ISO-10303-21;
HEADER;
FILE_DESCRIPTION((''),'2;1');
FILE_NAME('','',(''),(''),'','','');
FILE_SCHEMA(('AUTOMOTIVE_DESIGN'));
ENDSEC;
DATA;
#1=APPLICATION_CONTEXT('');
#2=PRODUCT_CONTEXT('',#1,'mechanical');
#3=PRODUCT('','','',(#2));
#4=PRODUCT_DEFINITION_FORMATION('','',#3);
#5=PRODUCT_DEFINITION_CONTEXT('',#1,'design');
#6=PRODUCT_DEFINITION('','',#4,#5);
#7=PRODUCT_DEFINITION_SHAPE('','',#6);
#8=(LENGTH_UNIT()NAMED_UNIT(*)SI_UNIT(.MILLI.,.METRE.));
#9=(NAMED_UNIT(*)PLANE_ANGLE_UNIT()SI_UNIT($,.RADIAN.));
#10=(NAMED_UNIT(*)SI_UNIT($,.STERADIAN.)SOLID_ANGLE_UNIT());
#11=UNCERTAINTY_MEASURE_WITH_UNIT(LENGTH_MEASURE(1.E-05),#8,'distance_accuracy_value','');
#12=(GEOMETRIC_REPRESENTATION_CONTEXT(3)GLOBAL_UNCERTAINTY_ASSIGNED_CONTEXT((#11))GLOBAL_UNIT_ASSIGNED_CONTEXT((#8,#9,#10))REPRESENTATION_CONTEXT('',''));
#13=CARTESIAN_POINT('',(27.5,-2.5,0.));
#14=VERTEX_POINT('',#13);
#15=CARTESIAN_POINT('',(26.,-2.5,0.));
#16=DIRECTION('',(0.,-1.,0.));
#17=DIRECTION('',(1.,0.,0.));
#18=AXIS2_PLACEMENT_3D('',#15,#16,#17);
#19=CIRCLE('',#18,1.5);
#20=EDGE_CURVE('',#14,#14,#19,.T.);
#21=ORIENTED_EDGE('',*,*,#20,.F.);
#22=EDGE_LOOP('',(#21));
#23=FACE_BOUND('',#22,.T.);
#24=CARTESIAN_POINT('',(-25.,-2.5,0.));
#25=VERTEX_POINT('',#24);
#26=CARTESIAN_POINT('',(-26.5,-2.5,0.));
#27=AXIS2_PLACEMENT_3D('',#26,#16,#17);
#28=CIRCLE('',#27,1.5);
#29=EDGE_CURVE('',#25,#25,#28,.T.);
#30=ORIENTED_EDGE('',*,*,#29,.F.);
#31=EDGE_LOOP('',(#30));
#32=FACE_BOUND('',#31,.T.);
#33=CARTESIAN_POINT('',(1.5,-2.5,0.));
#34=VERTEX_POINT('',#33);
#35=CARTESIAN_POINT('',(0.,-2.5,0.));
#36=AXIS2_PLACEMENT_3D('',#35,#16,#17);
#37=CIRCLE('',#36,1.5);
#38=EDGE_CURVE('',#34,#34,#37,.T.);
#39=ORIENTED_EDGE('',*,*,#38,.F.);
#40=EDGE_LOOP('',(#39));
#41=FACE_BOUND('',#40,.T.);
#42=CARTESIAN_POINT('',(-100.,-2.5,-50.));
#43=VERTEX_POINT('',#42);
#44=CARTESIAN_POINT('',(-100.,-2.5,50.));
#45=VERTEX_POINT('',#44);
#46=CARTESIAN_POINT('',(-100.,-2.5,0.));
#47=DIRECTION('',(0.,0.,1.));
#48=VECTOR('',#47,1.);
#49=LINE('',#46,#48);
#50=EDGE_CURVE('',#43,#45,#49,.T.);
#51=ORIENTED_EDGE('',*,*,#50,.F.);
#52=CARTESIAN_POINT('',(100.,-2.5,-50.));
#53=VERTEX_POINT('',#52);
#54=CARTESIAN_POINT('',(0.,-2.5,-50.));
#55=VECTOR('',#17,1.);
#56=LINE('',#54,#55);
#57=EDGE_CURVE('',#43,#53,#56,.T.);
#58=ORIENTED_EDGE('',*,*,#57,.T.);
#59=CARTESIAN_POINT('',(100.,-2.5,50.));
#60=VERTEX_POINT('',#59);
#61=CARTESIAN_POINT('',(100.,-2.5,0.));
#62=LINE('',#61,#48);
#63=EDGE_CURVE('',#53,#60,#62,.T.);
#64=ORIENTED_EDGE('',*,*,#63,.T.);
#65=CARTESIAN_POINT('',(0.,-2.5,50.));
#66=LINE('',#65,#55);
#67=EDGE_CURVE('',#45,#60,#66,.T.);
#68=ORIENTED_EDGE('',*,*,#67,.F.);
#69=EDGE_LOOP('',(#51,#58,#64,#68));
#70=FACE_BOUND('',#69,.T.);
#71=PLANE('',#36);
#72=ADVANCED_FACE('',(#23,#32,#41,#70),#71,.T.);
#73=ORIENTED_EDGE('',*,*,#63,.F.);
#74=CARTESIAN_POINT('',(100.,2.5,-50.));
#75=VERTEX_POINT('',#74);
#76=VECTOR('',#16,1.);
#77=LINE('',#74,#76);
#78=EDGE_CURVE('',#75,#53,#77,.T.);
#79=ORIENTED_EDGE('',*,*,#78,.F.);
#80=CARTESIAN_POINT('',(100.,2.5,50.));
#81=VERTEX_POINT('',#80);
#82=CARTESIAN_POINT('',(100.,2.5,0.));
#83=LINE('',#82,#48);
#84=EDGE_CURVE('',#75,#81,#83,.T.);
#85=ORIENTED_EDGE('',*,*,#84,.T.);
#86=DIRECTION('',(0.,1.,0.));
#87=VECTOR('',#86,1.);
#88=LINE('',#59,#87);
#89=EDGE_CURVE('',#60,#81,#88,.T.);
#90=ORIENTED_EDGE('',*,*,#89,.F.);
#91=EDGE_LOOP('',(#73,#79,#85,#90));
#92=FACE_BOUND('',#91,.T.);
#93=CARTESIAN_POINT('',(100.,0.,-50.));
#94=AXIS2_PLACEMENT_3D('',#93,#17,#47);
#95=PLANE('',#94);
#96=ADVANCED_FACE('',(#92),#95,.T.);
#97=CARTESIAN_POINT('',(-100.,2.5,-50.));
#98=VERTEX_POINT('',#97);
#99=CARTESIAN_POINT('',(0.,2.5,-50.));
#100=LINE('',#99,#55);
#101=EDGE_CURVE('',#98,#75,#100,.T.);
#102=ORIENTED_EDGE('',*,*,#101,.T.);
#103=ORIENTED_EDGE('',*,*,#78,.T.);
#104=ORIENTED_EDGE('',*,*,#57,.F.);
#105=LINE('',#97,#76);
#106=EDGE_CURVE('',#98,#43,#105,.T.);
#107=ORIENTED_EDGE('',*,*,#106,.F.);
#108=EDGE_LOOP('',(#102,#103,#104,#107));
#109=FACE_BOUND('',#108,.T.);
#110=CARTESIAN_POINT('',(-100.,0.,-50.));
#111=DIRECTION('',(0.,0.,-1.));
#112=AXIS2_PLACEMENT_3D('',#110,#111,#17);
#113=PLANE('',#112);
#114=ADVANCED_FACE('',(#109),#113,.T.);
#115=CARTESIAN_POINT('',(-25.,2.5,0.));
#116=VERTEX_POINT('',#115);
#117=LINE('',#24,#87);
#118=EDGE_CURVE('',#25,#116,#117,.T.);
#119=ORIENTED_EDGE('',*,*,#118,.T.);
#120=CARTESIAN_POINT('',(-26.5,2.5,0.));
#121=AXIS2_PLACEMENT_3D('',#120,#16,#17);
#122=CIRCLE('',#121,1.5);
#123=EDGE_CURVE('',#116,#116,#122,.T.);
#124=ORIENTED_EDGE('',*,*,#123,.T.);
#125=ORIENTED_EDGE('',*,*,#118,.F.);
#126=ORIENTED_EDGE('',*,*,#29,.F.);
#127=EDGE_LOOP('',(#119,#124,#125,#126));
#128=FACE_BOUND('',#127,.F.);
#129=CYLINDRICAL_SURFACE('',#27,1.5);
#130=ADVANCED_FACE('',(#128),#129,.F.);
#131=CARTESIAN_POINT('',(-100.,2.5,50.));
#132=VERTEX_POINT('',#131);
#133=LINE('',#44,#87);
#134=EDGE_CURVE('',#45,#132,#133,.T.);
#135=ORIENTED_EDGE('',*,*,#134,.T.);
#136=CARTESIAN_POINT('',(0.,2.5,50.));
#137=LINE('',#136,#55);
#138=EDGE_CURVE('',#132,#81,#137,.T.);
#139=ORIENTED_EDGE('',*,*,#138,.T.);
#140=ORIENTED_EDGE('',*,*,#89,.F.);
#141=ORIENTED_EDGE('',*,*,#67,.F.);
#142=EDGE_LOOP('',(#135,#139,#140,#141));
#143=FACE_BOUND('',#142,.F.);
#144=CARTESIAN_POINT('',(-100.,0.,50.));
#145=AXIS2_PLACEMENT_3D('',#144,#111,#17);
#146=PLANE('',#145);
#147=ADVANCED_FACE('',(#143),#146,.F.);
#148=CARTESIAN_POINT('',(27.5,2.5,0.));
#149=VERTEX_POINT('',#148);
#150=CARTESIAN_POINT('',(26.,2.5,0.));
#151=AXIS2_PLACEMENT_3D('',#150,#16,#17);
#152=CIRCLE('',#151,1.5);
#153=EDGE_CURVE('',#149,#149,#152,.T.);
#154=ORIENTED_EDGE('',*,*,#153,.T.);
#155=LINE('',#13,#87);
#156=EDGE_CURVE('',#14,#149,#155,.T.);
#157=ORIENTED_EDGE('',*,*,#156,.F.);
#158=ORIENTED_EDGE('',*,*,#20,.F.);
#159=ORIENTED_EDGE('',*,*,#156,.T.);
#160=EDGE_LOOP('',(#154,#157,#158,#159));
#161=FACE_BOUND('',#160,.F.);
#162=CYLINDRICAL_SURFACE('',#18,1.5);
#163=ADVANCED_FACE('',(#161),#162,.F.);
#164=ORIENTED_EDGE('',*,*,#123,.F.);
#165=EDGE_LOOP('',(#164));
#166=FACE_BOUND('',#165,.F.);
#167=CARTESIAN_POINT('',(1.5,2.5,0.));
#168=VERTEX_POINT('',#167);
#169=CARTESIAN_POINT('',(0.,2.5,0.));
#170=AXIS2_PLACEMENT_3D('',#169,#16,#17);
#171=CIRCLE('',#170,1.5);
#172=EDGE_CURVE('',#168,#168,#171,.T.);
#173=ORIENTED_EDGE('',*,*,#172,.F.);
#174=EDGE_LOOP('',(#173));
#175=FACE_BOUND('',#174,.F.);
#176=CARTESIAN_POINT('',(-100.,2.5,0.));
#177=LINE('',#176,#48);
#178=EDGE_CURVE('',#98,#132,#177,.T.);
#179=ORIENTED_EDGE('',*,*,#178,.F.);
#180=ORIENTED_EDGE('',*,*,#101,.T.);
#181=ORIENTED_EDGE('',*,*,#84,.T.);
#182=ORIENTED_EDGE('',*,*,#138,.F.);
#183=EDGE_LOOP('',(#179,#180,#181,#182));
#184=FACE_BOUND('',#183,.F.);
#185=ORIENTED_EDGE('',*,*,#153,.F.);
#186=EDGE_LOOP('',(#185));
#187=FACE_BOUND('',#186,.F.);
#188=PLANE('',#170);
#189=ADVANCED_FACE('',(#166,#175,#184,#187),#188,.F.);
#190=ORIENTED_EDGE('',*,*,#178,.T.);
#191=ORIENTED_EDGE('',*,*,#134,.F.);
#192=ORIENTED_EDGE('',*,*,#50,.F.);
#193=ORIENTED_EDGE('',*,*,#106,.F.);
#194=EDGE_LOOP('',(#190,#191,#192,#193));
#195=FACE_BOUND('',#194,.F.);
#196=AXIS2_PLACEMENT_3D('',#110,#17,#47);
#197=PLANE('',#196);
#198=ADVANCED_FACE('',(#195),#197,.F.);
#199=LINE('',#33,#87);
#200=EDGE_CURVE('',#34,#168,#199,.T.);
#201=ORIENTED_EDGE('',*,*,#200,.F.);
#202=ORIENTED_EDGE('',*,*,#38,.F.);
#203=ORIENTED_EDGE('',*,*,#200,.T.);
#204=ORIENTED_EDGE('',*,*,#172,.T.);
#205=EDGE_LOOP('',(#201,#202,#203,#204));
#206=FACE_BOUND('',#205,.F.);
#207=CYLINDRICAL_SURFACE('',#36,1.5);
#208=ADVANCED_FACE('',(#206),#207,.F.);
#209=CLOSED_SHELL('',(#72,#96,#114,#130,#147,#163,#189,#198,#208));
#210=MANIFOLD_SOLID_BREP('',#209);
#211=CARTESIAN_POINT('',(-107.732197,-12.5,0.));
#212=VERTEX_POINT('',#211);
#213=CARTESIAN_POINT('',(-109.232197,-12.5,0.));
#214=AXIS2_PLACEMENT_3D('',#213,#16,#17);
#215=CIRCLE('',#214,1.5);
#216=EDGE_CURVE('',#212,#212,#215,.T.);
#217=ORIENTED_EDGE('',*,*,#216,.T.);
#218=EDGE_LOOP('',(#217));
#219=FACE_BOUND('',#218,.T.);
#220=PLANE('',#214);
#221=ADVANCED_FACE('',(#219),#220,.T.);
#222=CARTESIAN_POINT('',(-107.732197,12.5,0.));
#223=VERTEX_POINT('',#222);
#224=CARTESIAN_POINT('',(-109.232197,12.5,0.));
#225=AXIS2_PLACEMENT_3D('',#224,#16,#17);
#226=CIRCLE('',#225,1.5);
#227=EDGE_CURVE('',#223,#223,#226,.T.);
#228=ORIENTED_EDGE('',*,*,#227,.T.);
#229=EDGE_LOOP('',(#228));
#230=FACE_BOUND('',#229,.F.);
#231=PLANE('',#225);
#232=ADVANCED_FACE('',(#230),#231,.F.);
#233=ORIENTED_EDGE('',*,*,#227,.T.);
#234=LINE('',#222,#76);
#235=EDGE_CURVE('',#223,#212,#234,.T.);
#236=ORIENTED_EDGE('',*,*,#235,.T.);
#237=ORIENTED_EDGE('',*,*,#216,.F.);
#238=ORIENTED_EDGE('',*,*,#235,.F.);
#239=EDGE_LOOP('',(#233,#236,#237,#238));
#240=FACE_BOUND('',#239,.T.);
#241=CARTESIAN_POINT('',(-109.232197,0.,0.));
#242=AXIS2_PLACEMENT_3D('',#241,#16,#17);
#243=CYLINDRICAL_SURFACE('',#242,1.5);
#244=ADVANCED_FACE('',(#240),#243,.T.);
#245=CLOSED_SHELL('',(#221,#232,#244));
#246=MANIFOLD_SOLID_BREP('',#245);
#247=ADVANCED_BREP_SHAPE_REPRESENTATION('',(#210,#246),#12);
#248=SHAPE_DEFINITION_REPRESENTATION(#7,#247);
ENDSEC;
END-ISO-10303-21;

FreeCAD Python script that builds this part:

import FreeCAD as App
import Part
import Sketcher

doc = App.newDocument("Part")
body = doc.addObject("PartDesign::Body", "Body")

sketch1 = doc.addObject("Sketcher::SketchObject", "Sketch")
body.addObject(sketch1)
sketch1.AttachmentSupport = (doc.XZ_Plane, [""])
sketch1.MapMode = "FlatFace"
sketch1.addGeometry([
    Part.LineSegment(App.Vector(-100, 50, 0), App.Vector(-100, -50, 0)),
    Part.LineSegment(App.Vector(-100, -50, 0), App.Vector(100, -50, 0)),
    Part.LineSegment(App.Vector(100, -50, 0), App.Vector(100, 50, 0)),
    Part.LineSegment(App.Vector(100, 50, 0), App.Vector(-100, 50, 0)),
], False)
sketch1.addConstraint([
    Sketcher.Constraint("Coincident", 0, 2, 1, 1),
    Sketcher.Constraint("Coincident", 1, 2, 2, 1),
    Sketcher.Constraint("Coincident", 2, 2, 3, 1),
    Sketcher.Constraint("Coincident", 3, 2, 0, 1),
    Sketcher.Constraint("Vertical", 0),
    Sketcher.Constraint("Horizontal", 1),
    Sketcher.Constraint("Vertical", 2),
    Sketcher.Constraint("Horizontal", 3),
    Sketcher.Constraint("Symmetric", 0, 2, 2, 2, -1, 1),
    Sketcher.Constraint("DistanceX", 1, 1, 1, 2, 200.0),
    Sketcher.Constraint("DistanceY", 0, 2, 0, 1, 100.0),
])
pad1 = doc.addObject("PartDesign::Pad", "Pad")
body.addObject(pad1)
pad1.Profile = sketch1
pad1.Length = 5
pad1.Midplane = True

sketch2 = doc.addObject("Sketcher::SketchObject", "Sketch001")
body.addObject(sketch2)
sketch2.AttachmentSupport = (doc.XZ_Plane, [""])
sketch2.MapMode = "FlatFace"
sketch2.AttachmentOffset = App.Placement(App.Vector(0, 0, 2.5), App.Rotation())
sketch2.addGeometry([
    Part.Circle(App.Vector(-26.5, 0, 0), App.Vector(0, 0, 1), 1.5),
    Part.Circle(App.Vector(0, 0, 0), App.Vector(0, 0, 1), 1.5),
    Part.Circle(App.Vector(26, 0, 0), App.Vector(0, 0, 1), 1.5),
], False)
sketch2.addConstraint([
    Sketcher.Constraint("Coincident", 1, 3, -1, 1),
    Sketcher.Constraint("Equal", 0, 1),
    Sketcher.Constraint("Equal", 1, 2),
    Sketcher.Constraint("PointOnObject", 0, 3, -1),
    Sketcher.Constraint("PointOnObject", 2, 3, -1),
    Sketcher.Constraint("Diameter", 0, 3.0),
    Sketcher.Constraint("DistanceX", -1, 1, 2, 3, 26.0),
    Sketcher.Constraint("DistanceX", 0, 3, -1, 1, 26.5),
])
pocket1 = doc.addObject("PartDesign::Pocket", "Pocket")
body.addObject(pocket1)
pocket1.Profile = sketch2
pocket1.Length = 25
body2 = doc.addObject("PartDesign::Body", "Body001")

sketch3 = doc.addObject("Sketcher::SketchObject", "Sketch002")
body2.addObject(sketch3)
sketch3.AttachmentSupport = (doc.getObject("XZ_Plane001"), [""])
sketch3.MapMode = "FlatFace"
sketch3.addGeometry(Part.Circle(App.Vector(-109.2, 0, 0), App.Vector(0, 0, 1), 1.5), False)
sketch3.addConstraint([
    Sketcher.Constraint("PointOnObject", 0, 3, -1),
    Sketcher.Constraint("Diameter", 0, 3.0),
    Sketcher.Constraint("DistanceX", 0, 3, -1, 1, 109.232197),
])
pad2 = doc.addObject("PartDesign::Pad", "Pad001")
body2.addObject(pad2)
pad2.Profile = sketch3
pad2.Length = 25
pad2.Midplane = True

doc.recompute()
